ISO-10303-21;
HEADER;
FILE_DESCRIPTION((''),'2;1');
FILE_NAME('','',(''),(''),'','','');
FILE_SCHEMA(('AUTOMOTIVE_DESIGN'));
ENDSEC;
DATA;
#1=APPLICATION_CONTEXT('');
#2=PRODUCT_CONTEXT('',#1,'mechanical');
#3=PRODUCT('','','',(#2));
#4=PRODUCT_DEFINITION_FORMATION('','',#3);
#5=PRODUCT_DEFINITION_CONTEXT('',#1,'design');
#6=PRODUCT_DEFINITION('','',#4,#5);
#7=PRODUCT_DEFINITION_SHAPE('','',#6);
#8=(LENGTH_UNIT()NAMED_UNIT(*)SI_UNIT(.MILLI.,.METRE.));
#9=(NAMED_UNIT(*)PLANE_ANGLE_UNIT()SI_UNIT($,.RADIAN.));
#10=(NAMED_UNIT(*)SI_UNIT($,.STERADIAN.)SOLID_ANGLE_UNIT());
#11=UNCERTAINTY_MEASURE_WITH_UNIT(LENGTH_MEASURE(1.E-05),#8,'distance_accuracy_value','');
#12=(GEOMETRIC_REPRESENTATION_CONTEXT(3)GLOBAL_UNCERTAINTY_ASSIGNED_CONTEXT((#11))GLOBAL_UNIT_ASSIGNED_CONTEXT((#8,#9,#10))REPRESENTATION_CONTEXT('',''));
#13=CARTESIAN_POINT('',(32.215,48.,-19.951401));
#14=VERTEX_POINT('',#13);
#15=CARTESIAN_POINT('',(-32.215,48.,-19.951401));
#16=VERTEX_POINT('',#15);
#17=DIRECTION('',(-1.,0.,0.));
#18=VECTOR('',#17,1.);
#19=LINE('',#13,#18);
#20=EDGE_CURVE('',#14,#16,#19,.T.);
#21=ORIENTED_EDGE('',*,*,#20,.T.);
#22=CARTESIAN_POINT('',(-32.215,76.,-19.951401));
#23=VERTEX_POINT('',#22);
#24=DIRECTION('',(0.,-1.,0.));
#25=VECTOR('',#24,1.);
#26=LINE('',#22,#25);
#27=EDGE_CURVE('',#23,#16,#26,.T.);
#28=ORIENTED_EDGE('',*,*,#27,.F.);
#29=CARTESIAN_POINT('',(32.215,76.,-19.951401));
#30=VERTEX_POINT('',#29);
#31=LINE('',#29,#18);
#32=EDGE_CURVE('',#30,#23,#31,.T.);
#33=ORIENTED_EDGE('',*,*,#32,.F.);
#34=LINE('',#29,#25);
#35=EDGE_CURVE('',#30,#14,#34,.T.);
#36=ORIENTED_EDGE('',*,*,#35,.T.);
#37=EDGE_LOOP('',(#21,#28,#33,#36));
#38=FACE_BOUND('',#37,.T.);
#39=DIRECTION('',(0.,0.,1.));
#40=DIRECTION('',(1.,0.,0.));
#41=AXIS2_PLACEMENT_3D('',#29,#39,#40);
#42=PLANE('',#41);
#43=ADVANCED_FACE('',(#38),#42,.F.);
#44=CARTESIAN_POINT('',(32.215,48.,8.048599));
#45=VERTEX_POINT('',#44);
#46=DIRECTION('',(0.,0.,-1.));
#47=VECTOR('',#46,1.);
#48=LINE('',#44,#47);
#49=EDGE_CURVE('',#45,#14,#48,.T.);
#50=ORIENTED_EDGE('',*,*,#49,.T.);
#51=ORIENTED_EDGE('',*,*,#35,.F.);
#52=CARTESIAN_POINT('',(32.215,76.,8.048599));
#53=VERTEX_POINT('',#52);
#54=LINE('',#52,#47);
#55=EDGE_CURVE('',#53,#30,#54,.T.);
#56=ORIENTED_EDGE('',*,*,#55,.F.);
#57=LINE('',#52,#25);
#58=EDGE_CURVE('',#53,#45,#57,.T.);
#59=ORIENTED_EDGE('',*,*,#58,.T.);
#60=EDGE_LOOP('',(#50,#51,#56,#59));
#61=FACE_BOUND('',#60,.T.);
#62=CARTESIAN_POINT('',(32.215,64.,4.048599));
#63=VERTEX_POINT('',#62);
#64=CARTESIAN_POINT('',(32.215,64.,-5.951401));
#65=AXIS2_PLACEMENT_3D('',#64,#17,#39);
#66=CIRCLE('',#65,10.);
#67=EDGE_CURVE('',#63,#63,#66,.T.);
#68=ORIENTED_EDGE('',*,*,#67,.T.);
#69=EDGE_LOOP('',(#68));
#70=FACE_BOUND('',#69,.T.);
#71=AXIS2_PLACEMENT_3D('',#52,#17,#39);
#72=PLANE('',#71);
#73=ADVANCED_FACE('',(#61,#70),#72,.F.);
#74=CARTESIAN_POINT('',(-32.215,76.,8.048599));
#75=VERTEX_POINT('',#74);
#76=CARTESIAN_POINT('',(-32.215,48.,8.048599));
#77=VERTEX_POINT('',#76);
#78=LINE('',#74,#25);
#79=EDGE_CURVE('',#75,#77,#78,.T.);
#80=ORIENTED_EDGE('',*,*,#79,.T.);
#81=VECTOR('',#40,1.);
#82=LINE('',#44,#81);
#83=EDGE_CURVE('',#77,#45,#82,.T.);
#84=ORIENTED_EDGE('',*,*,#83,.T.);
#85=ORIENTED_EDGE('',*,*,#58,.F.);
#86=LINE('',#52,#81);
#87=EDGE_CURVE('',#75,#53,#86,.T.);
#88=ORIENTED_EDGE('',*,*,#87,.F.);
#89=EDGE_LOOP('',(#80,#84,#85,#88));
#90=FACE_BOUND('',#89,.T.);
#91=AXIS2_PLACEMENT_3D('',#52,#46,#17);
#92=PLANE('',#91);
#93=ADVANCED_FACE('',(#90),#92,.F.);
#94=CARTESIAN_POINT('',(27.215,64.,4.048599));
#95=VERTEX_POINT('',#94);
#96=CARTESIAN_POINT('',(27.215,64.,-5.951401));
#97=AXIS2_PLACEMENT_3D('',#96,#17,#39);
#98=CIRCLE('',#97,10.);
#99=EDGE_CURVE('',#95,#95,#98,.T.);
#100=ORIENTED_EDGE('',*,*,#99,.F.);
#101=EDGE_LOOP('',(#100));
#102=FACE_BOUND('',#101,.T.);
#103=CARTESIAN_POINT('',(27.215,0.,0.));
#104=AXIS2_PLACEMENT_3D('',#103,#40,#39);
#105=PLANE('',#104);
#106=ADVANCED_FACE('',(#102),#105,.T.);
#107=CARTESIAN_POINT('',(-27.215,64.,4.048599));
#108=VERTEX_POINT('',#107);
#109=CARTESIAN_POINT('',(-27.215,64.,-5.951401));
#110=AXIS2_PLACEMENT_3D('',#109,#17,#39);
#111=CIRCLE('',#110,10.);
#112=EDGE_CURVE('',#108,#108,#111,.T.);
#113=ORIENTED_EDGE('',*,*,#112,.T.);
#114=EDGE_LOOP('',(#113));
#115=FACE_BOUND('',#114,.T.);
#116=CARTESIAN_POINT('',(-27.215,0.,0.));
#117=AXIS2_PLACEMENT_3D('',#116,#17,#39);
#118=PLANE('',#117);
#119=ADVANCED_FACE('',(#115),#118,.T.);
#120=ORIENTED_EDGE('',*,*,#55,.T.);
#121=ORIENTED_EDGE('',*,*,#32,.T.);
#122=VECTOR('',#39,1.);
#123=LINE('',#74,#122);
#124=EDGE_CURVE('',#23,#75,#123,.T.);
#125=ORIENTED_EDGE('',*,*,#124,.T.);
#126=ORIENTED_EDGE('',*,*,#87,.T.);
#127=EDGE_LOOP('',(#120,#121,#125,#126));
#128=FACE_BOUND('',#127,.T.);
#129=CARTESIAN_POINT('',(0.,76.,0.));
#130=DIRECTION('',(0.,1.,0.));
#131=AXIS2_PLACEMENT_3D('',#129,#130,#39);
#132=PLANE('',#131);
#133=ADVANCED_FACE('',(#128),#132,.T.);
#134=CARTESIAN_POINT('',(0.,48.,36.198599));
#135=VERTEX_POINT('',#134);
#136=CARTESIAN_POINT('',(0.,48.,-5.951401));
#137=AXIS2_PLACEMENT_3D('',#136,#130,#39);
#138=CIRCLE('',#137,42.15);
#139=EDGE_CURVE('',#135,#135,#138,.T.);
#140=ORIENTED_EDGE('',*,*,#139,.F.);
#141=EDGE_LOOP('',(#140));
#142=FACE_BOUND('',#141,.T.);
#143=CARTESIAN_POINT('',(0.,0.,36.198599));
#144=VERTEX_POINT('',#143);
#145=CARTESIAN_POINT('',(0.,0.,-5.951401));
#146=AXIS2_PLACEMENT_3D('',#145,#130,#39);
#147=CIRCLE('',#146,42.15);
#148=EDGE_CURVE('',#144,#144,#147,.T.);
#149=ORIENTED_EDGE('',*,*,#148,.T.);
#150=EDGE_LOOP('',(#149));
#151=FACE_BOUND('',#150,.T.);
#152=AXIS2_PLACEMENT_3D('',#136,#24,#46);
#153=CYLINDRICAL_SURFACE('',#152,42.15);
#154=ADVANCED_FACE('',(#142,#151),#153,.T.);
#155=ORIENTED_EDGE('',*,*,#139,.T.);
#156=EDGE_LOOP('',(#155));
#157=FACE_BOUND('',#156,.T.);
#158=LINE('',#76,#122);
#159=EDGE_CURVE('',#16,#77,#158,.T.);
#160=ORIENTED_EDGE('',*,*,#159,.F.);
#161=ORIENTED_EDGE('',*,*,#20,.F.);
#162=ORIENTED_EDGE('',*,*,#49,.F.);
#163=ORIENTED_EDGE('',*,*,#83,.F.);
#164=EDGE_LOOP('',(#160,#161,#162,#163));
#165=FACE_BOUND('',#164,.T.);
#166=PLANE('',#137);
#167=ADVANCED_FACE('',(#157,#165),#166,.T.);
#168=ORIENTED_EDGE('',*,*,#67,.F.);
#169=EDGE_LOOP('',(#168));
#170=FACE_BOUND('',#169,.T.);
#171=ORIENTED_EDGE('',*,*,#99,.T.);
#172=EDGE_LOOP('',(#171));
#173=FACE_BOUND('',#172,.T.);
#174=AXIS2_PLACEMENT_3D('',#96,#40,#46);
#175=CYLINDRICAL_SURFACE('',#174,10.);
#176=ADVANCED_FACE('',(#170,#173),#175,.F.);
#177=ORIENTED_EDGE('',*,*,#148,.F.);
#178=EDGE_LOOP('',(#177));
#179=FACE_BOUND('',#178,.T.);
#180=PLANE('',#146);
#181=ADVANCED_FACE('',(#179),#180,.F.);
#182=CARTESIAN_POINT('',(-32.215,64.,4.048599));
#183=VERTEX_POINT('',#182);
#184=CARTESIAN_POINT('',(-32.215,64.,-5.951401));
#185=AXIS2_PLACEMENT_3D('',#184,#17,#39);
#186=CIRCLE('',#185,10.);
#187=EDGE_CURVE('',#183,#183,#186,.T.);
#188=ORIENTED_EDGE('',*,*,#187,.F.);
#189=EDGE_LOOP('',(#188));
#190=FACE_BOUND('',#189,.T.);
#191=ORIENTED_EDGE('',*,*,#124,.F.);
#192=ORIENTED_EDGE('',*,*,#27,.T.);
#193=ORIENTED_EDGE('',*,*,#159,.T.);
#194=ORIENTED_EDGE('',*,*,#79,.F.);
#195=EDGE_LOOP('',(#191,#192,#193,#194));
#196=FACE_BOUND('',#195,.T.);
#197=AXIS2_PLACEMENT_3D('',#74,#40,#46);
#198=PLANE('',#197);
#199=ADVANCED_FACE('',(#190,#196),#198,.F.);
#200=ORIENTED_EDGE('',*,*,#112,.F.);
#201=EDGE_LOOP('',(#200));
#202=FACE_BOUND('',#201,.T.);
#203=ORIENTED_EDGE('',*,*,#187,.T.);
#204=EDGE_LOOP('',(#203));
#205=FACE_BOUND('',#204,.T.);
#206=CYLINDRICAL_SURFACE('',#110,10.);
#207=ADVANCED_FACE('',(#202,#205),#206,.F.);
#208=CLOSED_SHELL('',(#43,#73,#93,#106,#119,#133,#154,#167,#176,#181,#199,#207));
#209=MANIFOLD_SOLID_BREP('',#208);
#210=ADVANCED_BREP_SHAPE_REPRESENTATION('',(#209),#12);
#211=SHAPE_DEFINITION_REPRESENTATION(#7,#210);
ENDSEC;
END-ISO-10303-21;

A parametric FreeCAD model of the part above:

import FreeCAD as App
import Part
import Sketcher

V = App.Vector
Q = App.Units.Quantity

doc = App.newDocument("Part")
body = doc.addObject("PartDesign::Body", "Body")

sketch1 = body.newObject("Sketcher::SketchObject", "Sketch")
sketch1.AttachmentSupport = (doc.getObject("XZ_Plane"), [""])
sketch1.MapMode = "FlatFace"
sketch1.addGeometry(Part.Circle(V(0, -5.951401, 0), V(0, 0, 1), 42.15), False)
sketch1.addConstraint([
    Sketcher.Constraint("PointOnObject", 0, 3, -2),
    Sketcher.Constraint("Diameter", 0, Q("84.3 mm")),
    Sketcher.Constraint("DistanceY", 0, 3, -1, 1, Q("5.951401 mm")),
])
pad1 = body.newObject("PartDesign::Pad", "Pad")
pad1.Profile = sketch1
pad1.Length = 48
pad1.Reversed = True

sketch2 = body.newObject("Sketcher::SketchObject", "Sketch001")
sketch2.AttachmentSupport = (doc.getObject("XZ_Plane"), [""])
sketch2.MapMode = "FlatFace"
sketch2.AttachmentOffset = App.Placement(V(0, 0, -48), App.Rotation())
sketch2.addGeometry([
    Part.LineSegment(V(-32.215, -19.951401, 0), V(-32.215, 8.048599, 0)),
    Part.LineSegment(V(-32.215, 8.048599, 0), V(32.215, 8.048599, 0)),
    Part.LineSegment(V(32.215, 8.048599, 0), V(32.215, -19.951401, 0)),
    Part.LineSegment(V(32.215, -19.951401, 0), V(-32.215, -19.951401, 0)),
], False)
sketch2.addConstraint([
    Sketcher.Constraint("Coincident", 0, 2, 1, 1),
    Sketcher.Constraint("Coincident", 1, 2, 2, 1),
    Sketcher.Constraint("Coincident", 2, 2, 3, 1),
    Sketcher.Constraint("Coincident", 3, 2, 0, 1),
    Sketcher.Constraint("Vertical", 0),
    Sketcher.Constraint("Horizontal", 1),
    Sketcher.Constraint("Vertical", 2),
    Sketcher.Constraint("Horizontal", 3),
    Sketcher.Constraint("DistanceY", 0, 1, 0, 2, Q("28 mm")),
    Sketcher.Constraint("DistanceX", 1, 1, 1, 2, Q("64.43 mm")),
    Sketcher.Constraint("DistanceX", 0, 2, -1, 1, Q("32.215 mm")),
    Sketcher.Constraint("DistanceY", -1, 1, 0, 2, Q("8.048599 mm")),
])
pad2 = body.newObject("PartDesign::Pad", "Pad001")
pad2.Profile = sketch2
pad2.Length = 28
pad2.Reversed = True

sketch3 = body.newObject("Sketcher::SketchObject", "Sketch002")
sketch3.AttachmentSupport = (doc.getObject("YZ_Plane"), [""])
sketch3.MapMode = "FlatFace"
sketch3.AttachmentOffset = App.Placement(V(0, 0, -32.215), App.Rotation())
sketch3.addGeometry(Part.Circle(V(64, -5.951401, 0), V(0, 0, 1), 10), False)
sketch3.addConstraint([
    Sketcher.Constraint("Diameter", 0, Q("20 mm")),
    Sketcher.Constraint("DistanceX", -1, 1, 0, 3, Q("64 mm")),
    Sketcher.Constraint("DistanceY", 0, 3, -1, 1, Q("5.951401 mm")),
])
pocket1 = body.newObject("PartDesign::Pocket", "Pocket")
pocket1.Profile = sketch3
pocket1.Length = 5
pocket1.Reversed = True
doc.recompute()

mirrored = body.newObject("PartDesign::Mirrored", "Mirrored")
mirrored.Originals = [pocket1]
mirrored.MirrorPlane = (doc.getObject("YZ_Plane"), [""])
body.Tip = mirrored

doc.recompute()
